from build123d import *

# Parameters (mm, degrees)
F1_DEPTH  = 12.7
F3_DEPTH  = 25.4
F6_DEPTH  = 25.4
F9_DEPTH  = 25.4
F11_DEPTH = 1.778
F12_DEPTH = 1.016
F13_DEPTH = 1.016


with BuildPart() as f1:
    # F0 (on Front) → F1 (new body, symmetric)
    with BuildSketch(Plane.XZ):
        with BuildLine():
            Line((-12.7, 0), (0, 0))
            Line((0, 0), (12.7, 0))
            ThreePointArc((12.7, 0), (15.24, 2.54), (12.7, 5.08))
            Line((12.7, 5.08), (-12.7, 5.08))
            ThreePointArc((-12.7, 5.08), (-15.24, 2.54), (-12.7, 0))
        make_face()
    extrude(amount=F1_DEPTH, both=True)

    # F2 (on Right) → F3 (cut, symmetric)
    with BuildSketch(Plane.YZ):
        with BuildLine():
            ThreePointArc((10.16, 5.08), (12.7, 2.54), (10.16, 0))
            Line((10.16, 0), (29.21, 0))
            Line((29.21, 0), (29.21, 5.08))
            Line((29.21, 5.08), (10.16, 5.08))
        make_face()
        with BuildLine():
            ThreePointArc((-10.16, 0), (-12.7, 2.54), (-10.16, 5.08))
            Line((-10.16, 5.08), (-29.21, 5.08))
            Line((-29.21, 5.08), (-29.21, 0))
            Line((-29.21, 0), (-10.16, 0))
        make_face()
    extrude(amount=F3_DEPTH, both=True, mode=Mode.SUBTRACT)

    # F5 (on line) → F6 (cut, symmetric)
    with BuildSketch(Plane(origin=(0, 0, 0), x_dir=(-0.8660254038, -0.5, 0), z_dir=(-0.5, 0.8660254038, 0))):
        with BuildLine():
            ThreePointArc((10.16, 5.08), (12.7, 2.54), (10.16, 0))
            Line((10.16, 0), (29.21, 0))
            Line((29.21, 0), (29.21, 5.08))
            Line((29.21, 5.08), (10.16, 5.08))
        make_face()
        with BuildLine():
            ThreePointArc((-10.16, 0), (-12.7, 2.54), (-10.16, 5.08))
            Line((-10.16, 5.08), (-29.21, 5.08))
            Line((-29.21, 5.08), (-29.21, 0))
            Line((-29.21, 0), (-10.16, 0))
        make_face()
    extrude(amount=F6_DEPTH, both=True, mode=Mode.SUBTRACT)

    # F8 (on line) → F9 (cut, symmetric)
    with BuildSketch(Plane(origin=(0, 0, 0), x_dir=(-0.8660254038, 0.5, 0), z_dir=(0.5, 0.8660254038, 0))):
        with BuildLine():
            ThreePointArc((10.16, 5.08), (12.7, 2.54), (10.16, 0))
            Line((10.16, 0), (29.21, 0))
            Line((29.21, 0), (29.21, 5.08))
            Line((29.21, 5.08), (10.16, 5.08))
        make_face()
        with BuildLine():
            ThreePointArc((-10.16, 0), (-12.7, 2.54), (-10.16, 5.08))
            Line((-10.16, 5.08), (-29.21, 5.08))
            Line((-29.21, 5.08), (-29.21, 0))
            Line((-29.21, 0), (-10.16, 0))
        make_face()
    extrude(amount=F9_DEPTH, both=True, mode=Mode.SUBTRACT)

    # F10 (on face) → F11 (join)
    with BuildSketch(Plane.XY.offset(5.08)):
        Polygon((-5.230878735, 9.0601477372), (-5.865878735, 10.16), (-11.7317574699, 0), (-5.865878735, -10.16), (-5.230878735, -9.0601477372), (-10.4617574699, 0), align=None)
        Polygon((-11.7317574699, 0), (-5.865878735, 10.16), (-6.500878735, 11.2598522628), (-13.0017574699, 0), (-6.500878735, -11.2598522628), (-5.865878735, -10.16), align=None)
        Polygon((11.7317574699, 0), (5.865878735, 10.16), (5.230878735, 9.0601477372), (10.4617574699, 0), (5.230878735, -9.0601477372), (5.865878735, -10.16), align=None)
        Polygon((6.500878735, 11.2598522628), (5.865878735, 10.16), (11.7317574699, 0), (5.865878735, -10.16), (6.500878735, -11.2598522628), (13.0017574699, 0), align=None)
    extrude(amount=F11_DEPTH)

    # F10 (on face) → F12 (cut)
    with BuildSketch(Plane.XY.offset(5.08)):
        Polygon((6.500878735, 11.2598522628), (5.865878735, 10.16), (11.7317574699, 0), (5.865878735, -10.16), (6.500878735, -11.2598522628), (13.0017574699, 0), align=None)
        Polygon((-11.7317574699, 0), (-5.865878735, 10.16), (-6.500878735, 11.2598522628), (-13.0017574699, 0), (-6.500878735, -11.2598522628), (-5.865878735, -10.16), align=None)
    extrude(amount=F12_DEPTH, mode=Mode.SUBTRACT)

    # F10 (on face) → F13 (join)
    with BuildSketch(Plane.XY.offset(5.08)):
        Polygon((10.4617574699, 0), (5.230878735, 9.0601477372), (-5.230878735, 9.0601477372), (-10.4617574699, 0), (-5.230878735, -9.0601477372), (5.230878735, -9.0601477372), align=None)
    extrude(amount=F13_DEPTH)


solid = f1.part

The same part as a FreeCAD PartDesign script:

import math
import FreeCAD as App
import Part
import Sketcher
Q = App.Units.Quantity

doc = App.newDocument("Part")
body = doc.addObject("PartDesign::Body", "Body")

# Sketch on XZ plane
sketch1 = body.newObject("Sketcher::SketchObject", "Sketch")
sketch1.AttachmentSupport = (doc.getObject("XZ_Plane"), [""])
sketch1.MapMode = "FlatFace"
sketch1.addGeometry(Part.LineSegment(App.Vector(-12.7, 0, 0), App.Vector(12.7, 0, 0)), False)
sketch1.addGeometry(Part.ArcOfCircle(Part.Circle(App.Vector(12.7, 2.5, 0), App.Vector(0, 0, 1), 2.5), math.radians(-90), math.radians(90)), False)
sketch1.addGeometry(Part.LineSegment(App.Vector(12.7, 5.1, 0), App.Vector(-12.7, 5.1, 0)), False)
sketch1.addGeometry(Part.ArcOfCircle(Part.Circle(App.Vector(-12.7, 2.5, 0), App.Vector(0, 0, 1), 2.5), math.radians(90), math.radians(270)), False)
sketch1.addConstraint(Sketcher.Constraint("Tangent", 0, 2, 1, 1))
sketch1.addConstraint(Sketcher.Constraint("Tangent", 1, 2, 2, 1))
sketch1.addConstraint(Sketcher.Constraint("Tangent", 2, 2, 3, 1))
sketch1.addConstraint(Sketcher.Constraint("Tangent", 3, 2, 0, 1))
sketch1.addConstraint(Sketcher.Constraint("Horizontal", 0))
sketch1.addConstraint(Sketcher.Constraint("Horizontal", 2))
sketch1.addConstraint(Sketcher.Constraint("Symmetric", 0, 2, 3, 2, -1, 1))
sketch1.addConstraint(Sketcher.Constraint("Radius", 1, Q("0.1 in")))
sketch1.addConstraint(Sketcher.Constraint("DistanceX", 0, 1, 0, 2, Q("1 in")))
pad1 = body.newObject("PartDesign::Pad", "Pad")
pad1.Profile = sketch1
pad1.Length = Q("1 in")
pad1.Midplane = True

# Sketch on YZ plane
sketch2 = body.newObject("Sketcher::SketchObject", "Sketch001")
sketch2.AttachmentSupport = (doc.getObject("YZ_Plane"), [""])
sketch2.MapMode = "FlatFace"
sketch2.addGeometry(Part.ArcOfCircle(Part.Circle(App.Vector(10.2, 2.5, 0), App.Vector(0, 0, 1), 2.5), math.radians(-90), math.radians(90)), False)
sketch2.addGeometry(Part.LineSegment(App.Vector(10.2, 0, 0), App.Vector(29.2, 0, 0)), False)
sketch2.addGeometry(Part.LineSegment(App.Vector(29.2, 0, 0), App.Vector(29.2, 5.1, 0)), False)
sketch2.addGeometry(Part.LineSegment(App.Vector(29.2, 5.1, 0), App.Vector(10.2, 5.1, 0)), False)
sketch2.addGeometry(Part.ArcOfCircle(Part.Circle(App.Vector(-10.2, 2.5, 0), App.Vector(0, 0, 1), 2.5), math.radians(90), math.radians(270)), False)
sketch2.addGeometry(Part.LineSegment(App.Vector(-10.2, 5.1, 0), App.Vector(-29.2, 5.1, 0)), False)
sketch2.addGeometry(Part.LineSegment(App.Vector(-29.2, 5.1, 0), App.Vector(-29.2, 0, 0)), False)
sketch2.addGeometry(Part.LineSegment(App.Vector(-29.2, 0, 0), App.Vector(-10.2, 0, 0)), False)
sketch2.addConstraint(Sketcher.Constraint("Tangent", 0, 1, 1, 1))
sketch2.addConstraint(Sketcher.Constraint("Coincident", 1, 2, 2, 1))
sketch2.addConstraint(Sketcher.Constraint("Coincident", 2, 2, 3, 1))
sketch2.addConstraint(Sketcher.Constraint("Tangent", 3, 2, 0, 2))
sketch2.addConstraint(Sketcher.Constraint("Tangent", 4, 1, 5, 1))
sketch2.addConstraint(Sketcher.Constraint("Coincident", 5, 2, 6, 1))
sketch2.addConstraint(Sketcher.Constraint("Coincident", 6, 2, 7, 1))
sketch2.addConstraint(Sketcher.Constraint("Tangent", 7, 2, 4, 2))
sketch2.addConstraint(Sketcher.Constraint("Horizontal", 1))
sketch2.addConstraint(Sketcher.Constraint("Vertical", 2))
sketch2.addConstraint(Sketcher.Constraint("Horizontal", 3))
sketch2.addConstraint(Sketcher.Constraint("Horizontal", 5))
sketch2.addConstraint(Sketcher.Constraint("Vertical", 6))
sketch2.addConstraint(Sketcher.Constraint("Horizontal", 7))
sketch2.addConstraint(Sketcher.Constraint("Equal", 0, 4))
sketch2.addConstraint(Sketcher.Constraint("Symmetric", 1, 2, 6, 2, -1, 1))
sketch2.addConstraint(Sketcher.Constraint("Symmetric", 0, 3, 4, 3, -2))
sketch2.addConstraint(Sketcher.Constraint("Radius", 0, Q("0.1 in")))
sketch2.addConstraint(Sketcher.Constraint("DistanceX", 1, 1, 1, 2, Q("0.75 in")))
sketch2.addConstraint(Sketcher.Constraint("DistanceX", -1, 1, 0, 3, Q("0.4 in")))
pocket1 = body.newObject("PartDesign::Pocket", "Pocket")
pocket1.Profile = sketch2
pocket1.Length = Q("2 in")
pocket1.Midplane = True

# Sketch on an angled plane
sketch3 = body.newObject("Sketcher::SketchObject", "Sketch002")
sketch3.Placement = App.Placement(App.Vector(0, 0, 0), App.Rotation(App.Vector(-0.866025404, -0.5, 0), App.Vector(0, 0, 1), App.Vector(-0.5, 0.866025404, 0), "ZXY"))
sketch3.addGeometry(Part.ArcOfCircle(Part.Circle(App.Vector(10.2, 2.5, 0), App.Vector(0, 0, 1), 2.5), math.radians(-90), math.radians(90)), False)
sketch3.addGeometry(Part.LineSegment(App.Vector(10.2, 0, 0), App.Vector(29.2, 0, 0)), False)
sketch3.addGeometry(Part.LineSegment(App.Vector(29.2, 0, 0), App.Vector(29.2, 5.1, 0)), False)
sketch3.addGeometry(Part.LineSegment(App.Vector(29.2, 5.1, 0), App.Vector(10.2, 5.1, 0)), False)
sketch3.addGeometry(Part.ArcOfCircle(Part.Circle(App.Vector(-10.2, 2.5, 0), App.Vector(0, 0, 1), 2.5), math.radians(90), math.radians(270)), False)
sketch3.addGeometry(Part.LineSegment(App.Vector(-10.2, 5.1, 0), App.Vector(-29.2, 5.1, 0)), False)
sketch3.addGeometry(Part.LineSegment(App.Vector(-29.2, 5.1, 0), App.Vector(-29.2, 0, 0)), False)
sketch3.addGeometry(Part.LineSegment(App.Vector(-29.2, 0, 0), App.Vector(-10.2, 0, 0)), False)
sketch3.addConstraint(Sketcher.Constraint("Tangent", 0, 1, 1, 1))
sketch3.addConstraint(Sketcher.Constraint("Coincident", 1, 2, 2, 1))
sketch3.addConstraint(Sketcher.Constraint("Coincident", 2, 2, 3, 1))
sketch3.addConstraint(Sketcher.Constraint("Tangent", 3, 2, 0, 2))
sketch3.addConstraint(Sketcher.Constraint("Tangent", 4, 1, 5, 1))
sketch3.addConstraint(Sketcher.Constraint("Coincident", 5, 2, 6, 1))
sketch3.addConstraint(Sketcher.Constraint("Coincident", 6, 2, 7, 1))
sketch3.addConstraint(Sketcher.Constraint("Tangent", 7, 2, 4, 2))
sketch3.addConstraint(Sketcher.Constraint("Horizontal", 1))
sketch3.addConstraint(Sketcher.Constraint("Vertical", 2))
sketch3.addConstraint(Sketcher.Constraint("Horizontal", 3))
sketch3.addConstraint(Sketcher.Constraint("Horizontal", 5))
sketch3.addConstraint(Sketcher.Constraint("Vertical", 6))
sketch3.addConstraint(Sketcher.Constraint("Horizontal", 7))
sketch3.addConstraint(Sketcher.Constraint("Equal", 0, 4))
sketch3.addConstraint(Sketcher.Constraint("Symmetric", 1, 2, 6, 2, -1, 1))
sketch3.addConstraint(Sketcher.Constraint("Symmetric", 0, 3, 4, 3, -2))
sketch3.addConstraint(Sketcher.Constraint("Radius", 0, Q("0.1 in")))
sketch3.addConstraint(Sketcher.Constraint("DistanceX", 1, 1, 1, 2, Q("0.75 in")))
sketch3.addConstraint(Sketcher.Constraint("DistanceX", -1, 1, 0, 3, Q("0.4 in")))
pocket2 = body.newObject("PartDesign::Pocket", "Pocket001")
pocket2.Profile = sketch3
pocket2.Length = Q("2 in")
pocket2.Midplane = True

# Sketch on an angled plane
sketch4 = body.newObject("Sketcher::SketchObject", "Sketch003")
sketch4.Placement = App.Placement(App.Vector(0, 0, 0), App.Rotation(App.Vector(-0.866025404, 0.5, 0), App.Vector(0, 0, 1), App.Vector(0.5, 0.866025404, 0), "ZXY"))
sketch4.addGeometry(Part.ArcOfCircle(Part.Circle(App.Vector(10.2, 2.5, 0), App.Vector(0, 0, 1), 2.5), math.radians(-90), math.radians(90)), False)
sketch4.addGeometry(Part.LineSegment(App.Vector(10.2, 0, 0), App.Vector(29.2, 0, 0)), False)
sketch4.addGeometry(Part.LineSegment(App.Vector(29.2, 0, 0), App.Vector(29.2, 5.1, 0)), False)
sketch4.addGeometry(Part.LineSegment(App.Vector(29.2, 5.1, 0), App.Vector(10.2, 5.1, 0)), False)
sketch4.addGeometry(Part.ArcOfCircle(Part.Circle(App.Vector(-10.2, 2.5, 0), App.Vector(0, 0, 1), 2.5), math.radians(90), math.radians(270)), False)
sketch4.addGeometry(Part.LineSegment(App.Vector(-10.2, 5.1, 0), App.Vector(-29.2, 5.1, 0)), False)
sketch4.addGeometry(Part.LineSegment(App.Vector(-29.2, 5.1, 0), App.Vector(-29.2, 0, 0)), False)
sketch4.addGeometry(Part.LineSegment(App.Vector(-29.2, 0, 0), App.Vector(-10.2, 0, 0)), False)
sketch4.addConstraint(Sketcher.Constraint("Tangent", 0, 1, 1, 1))
sketch4.addConstraint(Sketcher.Constraint("Coincident", 1, 2, 2, 1))
sketch4.addConstraint(Sketcher.Constraint("Coincident", 2, 2, 3, 1))
sketch4.addConstraint(Sketcher.Constraint("Tangent", 3, 2, 0, 2))
sketch4.addConstraint(Sketcher.Constraint("Tangent", 4, 1, 5, 1))
sketch4.addConstraint(Sketcher.Constraint("Coincident", 5, 2, 6, 1))
sketch4.addConstraint(Sketcher.Constraint("Coincident", 6, 2, 7, 1))
sketch4.addConstraint(Sketcher.Constraint("Tangent", 7, 2, 4, 2))
sketch4.addConstraint(Sketcher.Constraint("Horizontal", 1))
sketch4.addConstraint(Sketcher.Constraint("Vertical", 2))
sketch4.addConstraint(Sketcher.Constraint("Horizontal", 3))
sketch4.addConstraint(Sketcher.Constraint("Horizontal", 5))
sketch4.addConstraint(Sketcher.Constraint("Vertical", 6))
sketch4.addConstraint(Sketcher.Constraint("Horizontal", 7))
sketch4.addConstraint(Sketcher.Constraint("Equal", 0, 4))
sketch4.addConstraint(Sketcher.Constraint("Symmetric", 1, 2, 6, 2, -1, 1))
sketch4.addConstraint(Sketcher.Constraint("Symmetric", 0, 3, 4, 3, -2))
sketch4.addConstraint(Sketcher.Constraint("Radius", 0, Q("0.1 in")))
sketch4.addConstraint(Sketcher.Constraint("DistanceX", 1, 1, 1, 2, Q("0.75 in")))
sketch4.addConstraint(Sketcher.Constraint("DistanceX", -1, 1, 0, 3, Q("0.4 in")))
pocket3 = body.newObject("PartDesign::Pocket", "Pocket002")
pocket3.Profile = sketch4
pocket3.Length = Q("2 in")
pocket3.Midplane = True

# Sketch on XY plane
sketch5 = body.newObject("Sketcher::SketchObject", "Sketch004")
sketch5.AttachmentSupport = (doc.getObject("XY_Plane"), [""])
sketch5.MapMode = "FlatFace"
sketch5.AttachmentOffset = App.Placement(App.Vector(0, 0, 0.2 * 25.4), App.Rotation())
sketch5.addGeometry(Part.LineSegment(App.Vector(-5.2, 9.1, 0), App.Vector(-6.5, 11.3, 0)), False)
sketch5.addGeometry(Part.LineSegment(App.Vector(-6.5, 11.3, 0), App.Vector(-13, 0, 0)), False)
sketch5.addGeometry(Part.LineSegment(App.Vector(-13, 0, 0), App.Vector(-6.5, -11.3, 0)), False)
sketch5.addGeometry(Part.LineSegment(App.Vector(-6.5, -11.3, 0), App.Vector(-5.2, -9.1, 0)), False)
sketch5.addGeometry(Part.LineSegment(App.Vector(-5.2, -9.1, 0), App.Vector(-10.5, 0, 0)), False)
sketch5.addGeometry(Part.LineSegment(App.Vector(-10.5, 0, 0), App.Vector(-5.2, 9.1, 0)), False)
sketch5.addGeometry(Part.LineSegment(App.Vector(5.2, 9.1, 0), App.Vector(10.5, 0, 0)), False)
sketch5.addGeometry(Part.LineSegment(App.Vector(10.5, 0, 0), App.Vector(5.2, -9.1, 0)), False)
sketch5.addGeometry(Part.LineSegment(App.Vector(5.2, -9.1, 0), App.Vector(6.5, -11.3, 0)), False)
sketch5.addGeometry(Part.LineSegment(App.Vector(6.5, -11.3, 0), App.Vector(13, 0, 0)), False)
sketch5.addGeometry(Part.LineSegment(App.Vector(13, 0, 0), App.Vector(6.5, 11.3, 0)), False)
sketch5.addGeometry(Part.LineSegment(App.Vector(6.5, 11.3, 0), App.Vector(5.2, 9.1, 0)), False)
sketch5.addConstraint(Sketcher.Constraint("Coincident", 0, 2, 1, 1))
sketch5.addConstraint(Sketcher.Constraint("Coincident", 1, 2, 2, 1))
sketch5.addConstraint(Sketcher.Constraint("Coincident", 2, 2, 3, 1))
sketch5.addConstraint(Sketcher.Constraint("Coincident", 3, 2, 4, 1))
sketch5.addConstraint(Sketcher.Constraint("Coincident", 4, 2, 5, 1))
sketch5.addConstraint(Sketcher.Constraint("Coincident", 5, 2, 0, 1))
sketch5.addConstraint(Sketcher.Constraint("Coincident", 6, 2, 7, 1))
sketch5.addConstraint(Sketcher.Constraint("Coincident", 7, 2, 8, 1))
sketch5.addConstraint(Sketcher.Constraint("Coincident", 8, 2, 9, 1))
sketch5.addConstraint(Sketcher.Constraint("Coincident", 9, 2, 10, 1))
sketch5.addConstraint(Sketcher.Constraint("Coincident", 10, 2, 11, 1))
sketch5.addConstraint(Sketcher.Constraint("Coincident", 11, 2, 6, 1))
sketch5.addConstraint(Sketcher.Constraint("Symmetric", 4, 2, 6, 2, -1, 1))
sketch5.addConstraint(Sketcher.Constraint("Symmetric", 5, 2, 7, 2, -1, 1))
sketch5.addConstraint(Sketcher.Constraint("Symmetric", 0, 2, 8, 2, -1, 1))
sketch5.addConstraint(Sketcher.Constraint("Symmetric", 1, 2, 9, 2, -1, 1))
sketch5.addConstraint(Sketcher.Constraint("Symmetric", 2, 2, 10, 2, -1, 1))
sketch5.addConstraint(Sketcher.Constraint("Symmetric", 3, 2, 11, 2, -1, 1))
sketch5.addConstraint(Sketcher.Constraint("Symmetric", 3, 2, 7, 2, -2))
sketch5.addConstraint(Sketcher.Constraint("Symmetric", 2, 2, 8, 2, -2))
sketch5.addConstraint(Sketcher.Constraint("PointOnObject", 1, 2, -1))
sketch5.addConstraint(Sketcher.Constraint("PointOnObject", 4, 2, -1))
sketch5.addConstraint(Sketcher.Constraint("Parallel", 0, 2))
sketch5.addConstraint(Sketcher.Constraint("Parallel", 2, 4))
sketch5.addConstraint(Sketcher.Constraint("Angle", 0, Q("120 deg")))
sketch5.addConstraint(Sketcher.Constraint("Distance", 0, Q("0.1 in")))
sketch5.addConstraint(Sketcher.Constraint("DistanceY", 3, 2, 0, 2, Q("0.8 in")))
sketch5.addConstraint(Sketcher.Constraint("DistanceX", 0, 2, -1, 1, 6.500879))
pad2 = body.newObject("PartDesign::Pad", "Pad001")
pad2.Profile = sketch5
pad2.Length = Q("0.07 in")

# Sketch on XY plane
sketch6 = body.newObject("Sketcher::SketchObject", "Sketch005")
sketch6.AttachmentSupport = (doc.getObject("XY_Plane"), [""])
sketch6.MapMode = "FlatFace"
sketch6.AttachmentOffset = App.Placement(App.Vector(0, 0, 0.2 * 25.4), App.Rotation())
sketch6.addGeometry(Part.LineSegment(App.Vector(6.5, 11.3, 0), App.Vector(5.9, 10.2, 0)), False)
sketch6.addGeometry(Part.LineSegment(App.Vector(5.9, 10.2, 0), App.Vector(11.7, 0, 0)), False)
sketch6.addGeometry(Part.LineSegment(App.Vector(11.7, 0, 0), App.Vector(5.9, -10.2, 0)), False)
sketch6.addGeometry(Part.LineSegment(App.Vector(5.9, -10.2, 0), App.Vector(6.5, -11.3, 0)), False)
sketch6.addGeometry(Part.LineSegment(App.Vector(6.5, -11.3, 0), App.Vector(13, 0, 0)), False)
sketch6.addGeometry(Part.LineSegment(App.Vector(13, 0, 0), App.Vector(6.5, 11.3, 0)), False)
sketch6.addGeometry(Part.LineSegment(App.Vector(-11.7, 0, 0), App.Vector(-5.9, 10.2, 0)), False)
sketch6.addGeometry(Part.LineSegment(App.Vector(-5.9, 10.2, 0), App.Vector(-6.5, 11.3, 0)), False)
sketch6.addGeometry(Part.LineSegment(App.Vector(-6.5, 11.3, 0), App.Vector(-13, 0, 0)), False)
sketch6.addGeometry(Part.LineSegment(App.Vector(-13, 0, 0), App.Vector(-6.5, -11.3, 0)), False)
sketch6.addGeometry(Part.LineSegment(App.Vector(-6.5, -11.3, 0), App.Vector(-5.9, -10.2, 0)), False)
sketch6.addGeometry(Part.LineSegment(App.Vector(-5.9, -10.2, 0), App.Vector(-11.7, 0, 0)), False)
sketch6.addConstraint(Sketcher.Constraint("Coincident", 0, 2, 1, 1))
sketch6.addConstraint(Sketcher.Constraint("Coincident", 1, 2, 2, 1))
sketch6.addConstraint(Sketcher.Constraint("Coincident", 2, 2, 3, 1))
sketch6.addConstraint(Sketcher.Constraint("Coincident", 3, 2, 4, 1))
sketch6.addConstraint(Sketcher.Constraint("Coincident", 4, 2, 5, 1))
sketch6.addConstraint(Sketcher.Constraint("Coincident", 5, 2, 0, 1))
sketch6.addConstraint(Sketcher.Constraint("Coincident", 6, 2, 7, 1))
sketch6.addConstraint(Sketcher.Constraint("Coincident", 7, 2, 8, 1))
sketch6.addConstraint(Sketcher.Constraint("Coincident", 8, 2, 9, 1))
sketch6.addConstraint(Sketcher.Constraint("Coincident", 9, 2, 10, 1))
sketch6.addConstraint(Sketcher.Constraint("Coincident", 10, 2, 11, 1))
sketch6.addConstraint(Sketcher.Constraint("Coincident", 11, 2, 6, 1))
sketch6.addConstraint(Sketcher.Constraint("Symmetric", 2, 2, 6, 2, -1, 1))
sketch6.addConstraint(Sketcher.Constraint("Symmetric", 3, 2, 7, 2, -1, 1))
sketch6.addConstraint(Sketcher.Constraint("Symmetric", 4, 2, 8, 2, -1, 1))
sketch6.addConstraint(Sketcher.Constraint("Symmetric", 5, 2, 9, 2, -1, 1))
sketch6.addConstraint(Sketcher.Constraint("Symmetric", 0, 2, 10, 2, -1, 1))
sketch6.addConstraint(Sketcher.Constraint("Symmetric", 1, 2, 11, 2, -1, 1))
sketch6.addConstraint(Sketcher.Constraint("Symmetric", 0, 2, 6, 2, -2))
sketch6.addConstraint(Sketcher.Constraint("Symmetric", 5, 2, 7, 2, -2))
sketch6.addConstraint(Sketcher.Constraint("PointOnObject", 1, 2, -1))
sketch6.addConstraint(Sketcher.Constraint("PointOnObject", 4, 2, -1))
sketch6.addConstraint(Sketcher.Constraint("Parallel", 0, 2))
sketch6.addConstraint(Sketcher.Constraint("Parallel", 2, 4))
sketch6.addConstraint(Sketcher.Constraint("Angle", 0, Q("-120 deg")))
sketch6.addConstraint(Sketcher.Constraint("DistanceY", -1, 1, 0, 2, Q("0.4 in")))
sketch6.addConstraint(Sketcher.Constraint("Distance", 0, Q("0.05 in")))
sketch6.addConstraint(Sketcher.Constraint("DistanceX", -1, 1, 0, 2, 5.865879))
pocket4 = body.newObject("PartDesign::Pocket", "Pocket003")
pocket4.Profile = sketch6
pocket4.Length = Q("0.04 in")
pocket4.Reversed = True

# Sketch on XY plane
sketch7 = body.newObject("Sketcher::SketchObject", "Sketch006")
sketch7.AttachmentSupport = (doc.getObject("XY_Plane"), [""])
sketch7.MapMode = "FlatFace"
sketch7.AttachmentOffset = App.Placement(App.Vector(0, 0, 0.2 * 25.4), App.Rotation())
sketch7.addGeometry(Part.LineSegment(App.Vector(10, 0, 0), App.Vector(5, 9, 0)), False)
sketch7.addGeometry(Part.LineSegment(App.Vector(5, 9, 0), App.Vector(-5, 9, 0)), False)
sketch7.addGeometry(Part.LineSegment(App.Vector(-5, 9, 0), App.Vector(-10, 0, 0)), False)
sketch7.addGeometry(Part.LineSegment(App.Vector(-10, 0, 0), App.Vector(-5, -9, 0)), False)
sketch7.addGeometry(Part.LineSegment(App.Vector(-5, -9, 0), App.Vector(5, -9, 0)), False)
sketch7.addGeometry(Part.LineSegment(App.Vector(5, -9, 0), App.Vector(10, 0, 0)), False)
sketch7.addConstraint(Sketcher.Constraint("Coincident", 0, 2, 1, 1))
sketch7.addConstraint(Sketcher.Constraint("Coincident", 1, 2, 2, 1))
sketch7.addConstraint(Sketcher.Constraint("Coincident", 2, 2, 3, 1))
sketch7.addConstraint(Sketcher.Constraint("Coincident", 3, 2, 4, 1))
sketch7.addConstraint(Sketcher.Constraint("Coincident", 4, 2, 5, 1))
sketch7.addConstraint(Sketcher.Constraint("Coincident", 5, 2, 0, 1))
sketch7.addConstraint(Sketcher.Constraint("Horizontal", 1))
sketch7.addConstraint(Sketcher.Constraint("Horizontal", 4))
sketch7.addConstraint(Sketcher.Constraint("Symmetric", 0, 2, 3, 2, -1, 1))
sketch7.addConstraint(Sketcher.Constraint("Symmetric", 2, 2, 5, 2, -1, 1))
sketch7.addConstraint(Sketcher.Constraint("PointOnObject", 2, 2, -1))
sketch7.addConstraint(Sketcher.Constraint("Parallel", 2, 5))
sketch7.addConstraint(Sketcher.Constraint("Vertical", 1, 2, 3, 2))
sketch7.addConstraint(Sketcher.Constraint("Angle", 0, Q("120 deg")))
sketch7.addConstraint(Sketcher.Constraint("DistanceX", 1, 2, 1, 1, 10.461757))
sketch7.addConstraint(Sketcher.Constraint("DistanceX", 2, 2, 1, 2, 5.230879))
pad3 = body.newObject("PartDesign::Pad", "Pad002")
pad3.Profile = sketch7
pad3.Length = Q("0.04 in")

doc.recompute()
